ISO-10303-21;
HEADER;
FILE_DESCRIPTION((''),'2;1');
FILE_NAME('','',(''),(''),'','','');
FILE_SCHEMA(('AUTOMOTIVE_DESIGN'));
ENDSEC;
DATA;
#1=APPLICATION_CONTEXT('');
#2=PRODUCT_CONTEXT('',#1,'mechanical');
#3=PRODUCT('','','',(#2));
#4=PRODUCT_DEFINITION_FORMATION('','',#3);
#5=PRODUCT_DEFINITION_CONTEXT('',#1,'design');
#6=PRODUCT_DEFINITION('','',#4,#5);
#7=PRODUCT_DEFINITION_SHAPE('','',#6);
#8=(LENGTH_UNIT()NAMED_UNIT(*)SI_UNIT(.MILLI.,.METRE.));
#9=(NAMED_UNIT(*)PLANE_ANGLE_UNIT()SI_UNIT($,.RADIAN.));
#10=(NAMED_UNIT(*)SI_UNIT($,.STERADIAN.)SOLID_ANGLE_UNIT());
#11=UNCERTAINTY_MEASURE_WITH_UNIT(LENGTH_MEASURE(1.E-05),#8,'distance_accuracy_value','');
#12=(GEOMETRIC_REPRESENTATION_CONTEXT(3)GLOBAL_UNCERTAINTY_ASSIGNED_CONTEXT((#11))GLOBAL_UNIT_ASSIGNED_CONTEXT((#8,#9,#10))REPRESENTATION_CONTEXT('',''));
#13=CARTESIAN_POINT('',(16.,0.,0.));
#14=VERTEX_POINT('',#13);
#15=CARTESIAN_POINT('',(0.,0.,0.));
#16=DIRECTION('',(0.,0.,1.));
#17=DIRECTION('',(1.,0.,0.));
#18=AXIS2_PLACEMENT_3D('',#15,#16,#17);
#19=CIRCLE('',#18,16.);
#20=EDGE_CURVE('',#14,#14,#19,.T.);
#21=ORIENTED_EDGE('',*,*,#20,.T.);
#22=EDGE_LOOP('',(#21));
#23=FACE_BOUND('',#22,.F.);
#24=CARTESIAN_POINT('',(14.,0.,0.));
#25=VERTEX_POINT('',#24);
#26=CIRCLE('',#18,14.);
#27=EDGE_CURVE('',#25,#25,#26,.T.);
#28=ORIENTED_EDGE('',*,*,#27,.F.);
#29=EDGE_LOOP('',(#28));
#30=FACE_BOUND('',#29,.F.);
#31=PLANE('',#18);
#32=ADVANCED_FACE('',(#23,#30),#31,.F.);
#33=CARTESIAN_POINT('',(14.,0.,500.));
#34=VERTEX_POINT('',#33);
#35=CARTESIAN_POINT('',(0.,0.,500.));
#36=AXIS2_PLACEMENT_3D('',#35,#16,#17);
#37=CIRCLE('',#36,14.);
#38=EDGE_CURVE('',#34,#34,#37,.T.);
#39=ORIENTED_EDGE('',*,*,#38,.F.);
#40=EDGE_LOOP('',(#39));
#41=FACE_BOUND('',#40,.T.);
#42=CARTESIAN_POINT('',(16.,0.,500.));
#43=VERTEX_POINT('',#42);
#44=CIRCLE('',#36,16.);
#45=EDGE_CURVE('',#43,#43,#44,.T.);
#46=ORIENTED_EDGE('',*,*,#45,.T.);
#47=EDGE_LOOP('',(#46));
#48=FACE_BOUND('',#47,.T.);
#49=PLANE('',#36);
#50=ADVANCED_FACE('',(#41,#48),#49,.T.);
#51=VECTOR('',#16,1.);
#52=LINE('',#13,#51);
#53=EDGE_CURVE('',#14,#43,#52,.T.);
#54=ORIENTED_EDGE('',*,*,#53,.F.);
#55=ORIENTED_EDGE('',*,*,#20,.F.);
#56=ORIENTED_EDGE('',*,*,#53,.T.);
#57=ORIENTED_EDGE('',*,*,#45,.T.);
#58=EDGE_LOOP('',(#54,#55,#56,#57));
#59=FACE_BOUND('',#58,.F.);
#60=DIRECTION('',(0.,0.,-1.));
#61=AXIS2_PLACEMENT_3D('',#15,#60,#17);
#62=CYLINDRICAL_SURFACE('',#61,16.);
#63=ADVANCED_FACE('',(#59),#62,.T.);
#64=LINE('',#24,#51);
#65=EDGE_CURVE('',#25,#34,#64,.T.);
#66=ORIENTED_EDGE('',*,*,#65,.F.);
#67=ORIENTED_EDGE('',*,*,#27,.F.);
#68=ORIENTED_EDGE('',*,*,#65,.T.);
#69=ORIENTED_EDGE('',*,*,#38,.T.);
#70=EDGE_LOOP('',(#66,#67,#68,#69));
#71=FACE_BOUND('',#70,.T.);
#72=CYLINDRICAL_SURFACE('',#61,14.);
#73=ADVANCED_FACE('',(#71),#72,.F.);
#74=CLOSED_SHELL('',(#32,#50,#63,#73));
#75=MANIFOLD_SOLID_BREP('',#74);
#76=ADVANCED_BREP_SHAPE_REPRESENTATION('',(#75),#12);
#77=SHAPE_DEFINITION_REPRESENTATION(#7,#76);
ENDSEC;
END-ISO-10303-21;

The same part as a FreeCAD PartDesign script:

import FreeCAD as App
import Part
import Sketcher
from FreeCAD import Vector
Q = App.Units.Quantity

doc = App.newDocument("Part")
body = doc.addObject("PartDesign::Body", "Body")

# Sketch on XY plane
sketch1 = body.newObject("Sketcher::SketchObject", "Sketch")
sketch1.AttachmentSupport = (doc.getObject("XY_Plane"), [""])
sketch1.MapMode = "FlatFace"
sketch1.addGeometry(Part.Circle(Vector(0, 0, 0), Vector(0, 0, 1), 16), False)
sketch1.addGeometry(Part.Circle(Vector(0, 0, 0), Vector(0, 0, 1), 14), False)
sketch1.addConstraint(Sketcher.Constraint("Coincident", 0, 3, -1, 1))
sketch1.addConstraint(Sketcher.Constraint("Coincident", 1, 3, -1, 1))
sketch1.addConstraint(Sketcher.Constraint("Diameter", 0, Q("32 mm")))
sketch1.addConstraint(Sketcher.Constraint("Diameter", 1, Q("28 mm")))
pad1 = body.newObject("PartDesign::Pad", "Pad")
pad1.Profile = sketch1
pad1.Length = 500

doc.recompute()
